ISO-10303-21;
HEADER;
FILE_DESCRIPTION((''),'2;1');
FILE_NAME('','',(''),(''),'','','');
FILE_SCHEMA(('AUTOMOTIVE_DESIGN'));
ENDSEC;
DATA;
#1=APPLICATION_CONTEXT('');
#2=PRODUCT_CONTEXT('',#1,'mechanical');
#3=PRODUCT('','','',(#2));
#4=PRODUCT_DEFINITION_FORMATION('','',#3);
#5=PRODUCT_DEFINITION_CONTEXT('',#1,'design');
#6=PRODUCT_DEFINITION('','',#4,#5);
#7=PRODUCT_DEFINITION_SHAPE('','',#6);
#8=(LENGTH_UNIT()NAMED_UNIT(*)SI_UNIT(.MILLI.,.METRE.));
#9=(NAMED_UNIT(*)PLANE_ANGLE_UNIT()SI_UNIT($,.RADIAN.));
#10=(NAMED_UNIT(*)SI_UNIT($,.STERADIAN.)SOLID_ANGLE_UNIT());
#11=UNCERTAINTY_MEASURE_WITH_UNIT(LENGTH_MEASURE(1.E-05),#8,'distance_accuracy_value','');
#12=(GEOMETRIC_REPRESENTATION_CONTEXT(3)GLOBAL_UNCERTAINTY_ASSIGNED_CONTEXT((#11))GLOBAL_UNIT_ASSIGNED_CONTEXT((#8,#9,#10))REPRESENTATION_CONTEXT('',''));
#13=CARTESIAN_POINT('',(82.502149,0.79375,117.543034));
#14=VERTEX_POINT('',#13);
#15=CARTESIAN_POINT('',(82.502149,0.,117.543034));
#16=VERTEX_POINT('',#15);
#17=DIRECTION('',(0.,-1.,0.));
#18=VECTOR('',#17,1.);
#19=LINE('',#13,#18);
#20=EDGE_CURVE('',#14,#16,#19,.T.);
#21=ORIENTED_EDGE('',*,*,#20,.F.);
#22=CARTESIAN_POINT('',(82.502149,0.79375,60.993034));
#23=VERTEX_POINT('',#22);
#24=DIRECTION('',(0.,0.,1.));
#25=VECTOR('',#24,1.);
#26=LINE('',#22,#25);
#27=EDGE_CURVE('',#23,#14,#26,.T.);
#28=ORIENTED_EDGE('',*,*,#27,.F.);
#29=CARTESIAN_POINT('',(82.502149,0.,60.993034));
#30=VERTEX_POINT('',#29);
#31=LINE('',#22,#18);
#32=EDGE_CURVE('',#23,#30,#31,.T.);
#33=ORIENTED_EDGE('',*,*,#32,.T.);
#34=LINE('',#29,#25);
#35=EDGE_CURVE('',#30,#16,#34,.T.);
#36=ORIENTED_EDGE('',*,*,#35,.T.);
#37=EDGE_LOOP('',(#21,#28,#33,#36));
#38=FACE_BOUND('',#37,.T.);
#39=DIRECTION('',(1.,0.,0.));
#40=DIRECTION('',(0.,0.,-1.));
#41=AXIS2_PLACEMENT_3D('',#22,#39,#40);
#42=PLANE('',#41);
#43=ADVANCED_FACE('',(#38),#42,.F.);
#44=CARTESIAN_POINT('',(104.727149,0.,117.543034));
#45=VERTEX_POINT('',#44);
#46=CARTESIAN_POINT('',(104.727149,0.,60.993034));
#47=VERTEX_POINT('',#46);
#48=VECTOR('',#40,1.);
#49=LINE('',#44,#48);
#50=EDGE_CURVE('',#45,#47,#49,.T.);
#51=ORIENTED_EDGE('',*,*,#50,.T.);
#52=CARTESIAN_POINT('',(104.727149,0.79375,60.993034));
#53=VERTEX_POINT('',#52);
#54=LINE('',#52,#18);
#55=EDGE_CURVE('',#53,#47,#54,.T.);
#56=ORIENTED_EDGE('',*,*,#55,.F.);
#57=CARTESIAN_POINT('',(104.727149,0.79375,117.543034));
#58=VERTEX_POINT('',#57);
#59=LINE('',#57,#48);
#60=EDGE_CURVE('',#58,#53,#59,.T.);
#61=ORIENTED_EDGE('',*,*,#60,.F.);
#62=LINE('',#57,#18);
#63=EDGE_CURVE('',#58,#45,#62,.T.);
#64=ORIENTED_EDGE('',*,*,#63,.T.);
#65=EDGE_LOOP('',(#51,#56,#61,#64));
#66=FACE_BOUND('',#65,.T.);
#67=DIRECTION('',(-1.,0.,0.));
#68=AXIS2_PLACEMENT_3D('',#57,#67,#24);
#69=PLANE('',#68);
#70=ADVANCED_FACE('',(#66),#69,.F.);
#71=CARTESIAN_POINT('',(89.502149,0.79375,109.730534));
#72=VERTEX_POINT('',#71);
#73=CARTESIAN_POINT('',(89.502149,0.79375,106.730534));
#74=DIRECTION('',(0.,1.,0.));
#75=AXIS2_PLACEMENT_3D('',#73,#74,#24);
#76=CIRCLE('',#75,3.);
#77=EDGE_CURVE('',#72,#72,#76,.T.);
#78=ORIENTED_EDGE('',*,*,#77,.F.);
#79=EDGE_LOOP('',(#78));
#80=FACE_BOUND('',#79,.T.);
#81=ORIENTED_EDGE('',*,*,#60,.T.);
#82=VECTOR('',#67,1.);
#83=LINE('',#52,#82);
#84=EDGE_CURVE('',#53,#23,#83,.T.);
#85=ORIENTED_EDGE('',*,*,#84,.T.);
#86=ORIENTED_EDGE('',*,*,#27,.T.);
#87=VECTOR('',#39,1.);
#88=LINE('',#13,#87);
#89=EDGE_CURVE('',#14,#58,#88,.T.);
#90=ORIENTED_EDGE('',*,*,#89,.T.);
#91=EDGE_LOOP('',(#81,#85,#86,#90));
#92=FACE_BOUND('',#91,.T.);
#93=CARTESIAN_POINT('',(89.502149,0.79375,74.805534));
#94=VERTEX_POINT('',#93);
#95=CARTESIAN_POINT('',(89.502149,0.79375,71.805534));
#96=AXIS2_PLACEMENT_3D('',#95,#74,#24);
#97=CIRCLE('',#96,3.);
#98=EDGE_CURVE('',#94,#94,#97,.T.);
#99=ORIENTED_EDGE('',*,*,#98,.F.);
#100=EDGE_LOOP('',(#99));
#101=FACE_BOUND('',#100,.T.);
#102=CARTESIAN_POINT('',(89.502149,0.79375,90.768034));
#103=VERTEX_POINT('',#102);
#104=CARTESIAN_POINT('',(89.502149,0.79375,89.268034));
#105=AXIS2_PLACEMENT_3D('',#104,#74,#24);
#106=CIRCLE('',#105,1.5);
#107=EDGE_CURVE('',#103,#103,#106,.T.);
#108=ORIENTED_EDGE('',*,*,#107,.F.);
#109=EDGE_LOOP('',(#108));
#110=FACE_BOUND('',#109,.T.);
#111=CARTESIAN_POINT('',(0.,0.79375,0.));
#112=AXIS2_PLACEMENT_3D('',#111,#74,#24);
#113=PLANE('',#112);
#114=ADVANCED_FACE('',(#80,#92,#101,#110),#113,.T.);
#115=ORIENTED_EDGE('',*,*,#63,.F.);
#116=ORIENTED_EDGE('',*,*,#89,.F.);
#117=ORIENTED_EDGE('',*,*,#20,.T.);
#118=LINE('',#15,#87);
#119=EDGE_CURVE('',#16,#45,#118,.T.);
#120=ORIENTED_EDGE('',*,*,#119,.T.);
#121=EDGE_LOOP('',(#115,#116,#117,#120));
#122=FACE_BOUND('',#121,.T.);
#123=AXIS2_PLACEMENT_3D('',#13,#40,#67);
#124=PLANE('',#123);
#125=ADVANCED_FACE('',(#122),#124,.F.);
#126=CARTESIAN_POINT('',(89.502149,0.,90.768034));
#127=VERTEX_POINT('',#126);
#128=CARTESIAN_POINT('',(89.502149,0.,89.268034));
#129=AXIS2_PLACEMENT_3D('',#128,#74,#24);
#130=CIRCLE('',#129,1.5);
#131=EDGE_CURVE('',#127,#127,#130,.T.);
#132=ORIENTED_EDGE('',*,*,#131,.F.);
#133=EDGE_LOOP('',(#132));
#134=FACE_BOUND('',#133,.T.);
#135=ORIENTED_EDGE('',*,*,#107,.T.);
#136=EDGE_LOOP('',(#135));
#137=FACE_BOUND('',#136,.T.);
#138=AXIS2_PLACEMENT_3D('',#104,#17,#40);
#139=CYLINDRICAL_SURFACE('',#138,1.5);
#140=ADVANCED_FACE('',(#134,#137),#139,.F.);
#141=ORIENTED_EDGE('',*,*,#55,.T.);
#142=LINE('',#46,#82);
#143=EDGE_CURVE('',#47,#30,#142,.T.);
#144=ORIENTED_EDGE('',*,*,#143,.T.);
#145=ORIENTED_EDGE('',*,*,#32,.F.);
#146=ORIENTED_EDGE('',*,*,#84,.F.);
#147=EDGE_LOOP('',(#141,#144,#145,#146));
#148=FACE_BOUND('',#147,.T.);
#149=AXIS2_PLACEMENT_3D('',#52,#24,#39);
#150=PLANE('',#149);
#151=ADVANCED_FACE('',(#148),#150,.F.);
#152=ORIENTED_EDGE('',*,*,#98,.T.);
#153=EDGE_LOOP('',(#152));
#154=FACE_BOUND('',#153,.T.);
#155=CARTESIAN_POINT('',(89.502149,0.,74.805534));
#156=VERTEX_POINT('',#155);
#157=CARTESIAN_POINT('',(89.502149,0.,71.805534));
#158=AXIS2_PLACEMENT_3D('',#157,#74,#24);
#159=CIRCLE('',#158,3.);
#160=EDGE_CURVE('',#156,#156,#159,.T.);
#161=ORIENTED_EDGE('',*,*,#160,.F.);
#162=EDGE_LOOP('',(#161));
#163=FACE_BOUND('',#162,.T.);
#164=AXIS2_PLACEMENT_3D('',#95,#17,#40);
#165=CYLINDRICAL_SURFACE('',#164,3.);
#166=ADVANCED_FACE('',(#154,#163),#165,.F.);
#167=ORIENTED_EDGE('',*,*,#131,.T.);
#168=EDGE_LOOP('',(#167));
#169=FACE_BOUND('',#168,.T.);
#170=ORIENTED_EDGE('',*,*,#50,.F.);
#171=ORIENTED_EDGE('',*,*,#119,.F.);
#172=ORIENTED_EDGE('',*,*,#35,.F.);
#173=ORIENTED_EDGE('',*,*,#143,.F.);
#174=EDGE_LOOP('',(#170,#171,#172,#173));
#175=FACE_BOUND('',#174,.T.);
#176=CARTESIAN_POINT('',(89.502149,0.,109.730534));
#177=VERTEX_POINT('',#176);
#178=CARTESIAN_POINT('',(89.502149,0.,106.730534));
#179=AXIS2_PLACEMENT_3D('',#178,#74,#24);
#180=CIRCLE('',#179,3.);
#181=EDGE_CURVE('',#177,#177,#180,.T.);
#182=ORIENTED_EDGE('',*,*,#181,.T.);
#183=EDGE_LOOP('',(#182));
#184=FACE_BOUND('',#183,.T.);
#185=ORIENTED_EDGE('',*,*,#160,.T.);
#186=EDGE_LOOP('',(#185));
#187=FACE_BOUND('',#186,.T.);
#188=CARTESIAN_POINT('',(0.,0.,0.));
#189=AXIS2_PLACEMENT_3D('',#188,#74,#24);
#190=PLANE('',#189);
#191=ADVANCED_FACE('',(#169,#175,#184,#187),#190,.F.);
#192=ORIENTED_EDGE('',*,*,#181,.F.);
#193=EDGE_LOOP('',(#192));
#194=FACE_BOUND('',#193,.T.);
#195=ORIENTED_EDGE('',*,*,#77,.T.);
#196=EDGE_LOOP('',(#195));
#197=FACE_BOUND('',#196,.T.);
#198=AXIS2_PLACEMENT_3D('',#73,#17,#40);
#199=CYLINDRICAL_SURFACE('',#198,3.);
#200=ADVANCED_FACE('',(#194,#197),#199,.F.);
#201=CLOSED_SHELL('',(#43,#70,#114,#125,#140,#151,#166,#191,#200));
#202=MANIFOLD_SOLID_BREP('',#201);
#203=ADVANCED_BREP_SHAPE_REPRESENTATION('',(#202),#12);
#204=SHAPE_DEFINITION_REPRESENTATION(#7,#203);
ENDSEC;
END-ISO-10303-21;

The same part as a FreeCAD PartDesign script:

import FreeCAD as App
import Part
import Sketcher
Q = App.Units.Quantity

doc = App.newDocument("Part")
params = doc.addObject("Spreadsheet::Sheet", "Params")
for row, (alias, value) in enumerate([
    ("sketch1_diameter", "6 mm"),
    ("sketch1_diameter2", "3 mm"),
    ("sketch1_height", "56.55 mm"),
    ("pad1_length", "0.79375 mm"),
], start=1):
    params.set(f"A{row}", alias)
    params.set(f"B{row}", "=" + value)
    params.setAlias(f"B{row}", alias)

body = doc.addObject("PartDesign::Body", "Body")

# Sketch on XZ plane
sketch1 = doc.addObject("Sketcher::SketchObject", "Sketch")
body.addObject(sketch1)
sketch1.AttachmentSupport = (doc.XZ_Plane, [""])
sketch1.MapMode = "FlatFace"
sketch1.addGeometry([
    Part.LineSegment(App.Vector(82.5, 61, 0), App.Vector(82.5, 117.5, 0)),  # 0
    Part.LineSegment(App.Vector(82.5, 117.5, 0), App.Vector(104.7, 117.5, 0)),  # 1
    Part.LineSegment(App.Vector(104.7, 117.5, 0), App.Vector(104.7, 61, 0)),  # 2
    Part.LineSegment(App.Vector(104.7, 61, 0), App.Vector(82.5, 61, 0)),  # 3
    Part.Circle(App.Vector(89.5, 106.7, 0), App.Vector(0, 0, 1), 3),  # 4
    Part.Circle(App.Vector(89.5, 89.3, 0), App.Vector(0, 0, 1), 1.5),  # 5
    Part.Circle(App.Vector(89.5, 71.8, 0), App.Vector(0, 0, 1), 3),  # 6
], False)
sketch1.addConstraint([
    Sketcher.Constraint("Coincident", 0, 2, 1, 1),
    Sketcher.Constraint("Coincident", 1, 2, 2, 1),
    Sketcher.Constraint("Coincident", 2, 2, 3, 1),
    Sketcher.Constraint("Coincident", 3, 2, 0, 1),
    Sketcher.Constraint("Vertical", 0),
    Sketcher.Constraint("Horizontal", 1),
    Sketcher.Constraint("Vertical", 2),
    Sketcher.Constraint("Horizontal", 3),
    Sketcher.Constraint("Equal", 4, 6),
    Sketcher.Constraint("Vertical", 4, 3, 5, 3),
    Sketcher.Constraint("Vertical", 5, 3, 6, 3),
    Sketcher.Constraint("Diameter", 4, Q("6 mm")),
    Sketcher.Constraint("Diameter", 5, Q("3 mm")),
    Sketcher.Constraint("DistanceX", 0, 2, 4, 3, Q("7 mm")),
    Sketcher.Constraint("DistanceY", 0, 1, 0, 2, Q("56.55 mm")),
    Sketcher.Constraint("DistanceX", 1, 1, 1, 2, Q("22.225 mm")),
    Sketcher.Constraint("DistanceY", 6, 3, 4, 3, Q("34.925 mm")),
    Sketcher.Constraint("DistanceY", 5, 3, 0, 2, Q("28.275 mm")),
    Sketcher.Constraint("DistanceY", 5, 3, 4, 3, Q("17.4625 mm")),
    Sketcher.Constraint("DistanceX", -1, 1, 4, 3, Q("89.502149 mm")),
    Sketcher.Constraint("DistanceY", -1, 1, 4, 3, Q("106.730534 mm")),
])
sketch1.setExpression("Constraints[11]", "Params.sketch1_diameter")
sketch1.setExpression("Constraints[12]", "Params.sketch1_diameter2")
sketch1.setExpression("Constraints[14]", "Params.sketch1_height")
pad1 = doc.addObject("PartDesign::Pad", "Pad")
body.addObject(pad1)
pad1.Profile = sketch1
pad1.setExpression("Length", "Params.pad1_length")
pad1.Reversed = True

doc.recompute()
